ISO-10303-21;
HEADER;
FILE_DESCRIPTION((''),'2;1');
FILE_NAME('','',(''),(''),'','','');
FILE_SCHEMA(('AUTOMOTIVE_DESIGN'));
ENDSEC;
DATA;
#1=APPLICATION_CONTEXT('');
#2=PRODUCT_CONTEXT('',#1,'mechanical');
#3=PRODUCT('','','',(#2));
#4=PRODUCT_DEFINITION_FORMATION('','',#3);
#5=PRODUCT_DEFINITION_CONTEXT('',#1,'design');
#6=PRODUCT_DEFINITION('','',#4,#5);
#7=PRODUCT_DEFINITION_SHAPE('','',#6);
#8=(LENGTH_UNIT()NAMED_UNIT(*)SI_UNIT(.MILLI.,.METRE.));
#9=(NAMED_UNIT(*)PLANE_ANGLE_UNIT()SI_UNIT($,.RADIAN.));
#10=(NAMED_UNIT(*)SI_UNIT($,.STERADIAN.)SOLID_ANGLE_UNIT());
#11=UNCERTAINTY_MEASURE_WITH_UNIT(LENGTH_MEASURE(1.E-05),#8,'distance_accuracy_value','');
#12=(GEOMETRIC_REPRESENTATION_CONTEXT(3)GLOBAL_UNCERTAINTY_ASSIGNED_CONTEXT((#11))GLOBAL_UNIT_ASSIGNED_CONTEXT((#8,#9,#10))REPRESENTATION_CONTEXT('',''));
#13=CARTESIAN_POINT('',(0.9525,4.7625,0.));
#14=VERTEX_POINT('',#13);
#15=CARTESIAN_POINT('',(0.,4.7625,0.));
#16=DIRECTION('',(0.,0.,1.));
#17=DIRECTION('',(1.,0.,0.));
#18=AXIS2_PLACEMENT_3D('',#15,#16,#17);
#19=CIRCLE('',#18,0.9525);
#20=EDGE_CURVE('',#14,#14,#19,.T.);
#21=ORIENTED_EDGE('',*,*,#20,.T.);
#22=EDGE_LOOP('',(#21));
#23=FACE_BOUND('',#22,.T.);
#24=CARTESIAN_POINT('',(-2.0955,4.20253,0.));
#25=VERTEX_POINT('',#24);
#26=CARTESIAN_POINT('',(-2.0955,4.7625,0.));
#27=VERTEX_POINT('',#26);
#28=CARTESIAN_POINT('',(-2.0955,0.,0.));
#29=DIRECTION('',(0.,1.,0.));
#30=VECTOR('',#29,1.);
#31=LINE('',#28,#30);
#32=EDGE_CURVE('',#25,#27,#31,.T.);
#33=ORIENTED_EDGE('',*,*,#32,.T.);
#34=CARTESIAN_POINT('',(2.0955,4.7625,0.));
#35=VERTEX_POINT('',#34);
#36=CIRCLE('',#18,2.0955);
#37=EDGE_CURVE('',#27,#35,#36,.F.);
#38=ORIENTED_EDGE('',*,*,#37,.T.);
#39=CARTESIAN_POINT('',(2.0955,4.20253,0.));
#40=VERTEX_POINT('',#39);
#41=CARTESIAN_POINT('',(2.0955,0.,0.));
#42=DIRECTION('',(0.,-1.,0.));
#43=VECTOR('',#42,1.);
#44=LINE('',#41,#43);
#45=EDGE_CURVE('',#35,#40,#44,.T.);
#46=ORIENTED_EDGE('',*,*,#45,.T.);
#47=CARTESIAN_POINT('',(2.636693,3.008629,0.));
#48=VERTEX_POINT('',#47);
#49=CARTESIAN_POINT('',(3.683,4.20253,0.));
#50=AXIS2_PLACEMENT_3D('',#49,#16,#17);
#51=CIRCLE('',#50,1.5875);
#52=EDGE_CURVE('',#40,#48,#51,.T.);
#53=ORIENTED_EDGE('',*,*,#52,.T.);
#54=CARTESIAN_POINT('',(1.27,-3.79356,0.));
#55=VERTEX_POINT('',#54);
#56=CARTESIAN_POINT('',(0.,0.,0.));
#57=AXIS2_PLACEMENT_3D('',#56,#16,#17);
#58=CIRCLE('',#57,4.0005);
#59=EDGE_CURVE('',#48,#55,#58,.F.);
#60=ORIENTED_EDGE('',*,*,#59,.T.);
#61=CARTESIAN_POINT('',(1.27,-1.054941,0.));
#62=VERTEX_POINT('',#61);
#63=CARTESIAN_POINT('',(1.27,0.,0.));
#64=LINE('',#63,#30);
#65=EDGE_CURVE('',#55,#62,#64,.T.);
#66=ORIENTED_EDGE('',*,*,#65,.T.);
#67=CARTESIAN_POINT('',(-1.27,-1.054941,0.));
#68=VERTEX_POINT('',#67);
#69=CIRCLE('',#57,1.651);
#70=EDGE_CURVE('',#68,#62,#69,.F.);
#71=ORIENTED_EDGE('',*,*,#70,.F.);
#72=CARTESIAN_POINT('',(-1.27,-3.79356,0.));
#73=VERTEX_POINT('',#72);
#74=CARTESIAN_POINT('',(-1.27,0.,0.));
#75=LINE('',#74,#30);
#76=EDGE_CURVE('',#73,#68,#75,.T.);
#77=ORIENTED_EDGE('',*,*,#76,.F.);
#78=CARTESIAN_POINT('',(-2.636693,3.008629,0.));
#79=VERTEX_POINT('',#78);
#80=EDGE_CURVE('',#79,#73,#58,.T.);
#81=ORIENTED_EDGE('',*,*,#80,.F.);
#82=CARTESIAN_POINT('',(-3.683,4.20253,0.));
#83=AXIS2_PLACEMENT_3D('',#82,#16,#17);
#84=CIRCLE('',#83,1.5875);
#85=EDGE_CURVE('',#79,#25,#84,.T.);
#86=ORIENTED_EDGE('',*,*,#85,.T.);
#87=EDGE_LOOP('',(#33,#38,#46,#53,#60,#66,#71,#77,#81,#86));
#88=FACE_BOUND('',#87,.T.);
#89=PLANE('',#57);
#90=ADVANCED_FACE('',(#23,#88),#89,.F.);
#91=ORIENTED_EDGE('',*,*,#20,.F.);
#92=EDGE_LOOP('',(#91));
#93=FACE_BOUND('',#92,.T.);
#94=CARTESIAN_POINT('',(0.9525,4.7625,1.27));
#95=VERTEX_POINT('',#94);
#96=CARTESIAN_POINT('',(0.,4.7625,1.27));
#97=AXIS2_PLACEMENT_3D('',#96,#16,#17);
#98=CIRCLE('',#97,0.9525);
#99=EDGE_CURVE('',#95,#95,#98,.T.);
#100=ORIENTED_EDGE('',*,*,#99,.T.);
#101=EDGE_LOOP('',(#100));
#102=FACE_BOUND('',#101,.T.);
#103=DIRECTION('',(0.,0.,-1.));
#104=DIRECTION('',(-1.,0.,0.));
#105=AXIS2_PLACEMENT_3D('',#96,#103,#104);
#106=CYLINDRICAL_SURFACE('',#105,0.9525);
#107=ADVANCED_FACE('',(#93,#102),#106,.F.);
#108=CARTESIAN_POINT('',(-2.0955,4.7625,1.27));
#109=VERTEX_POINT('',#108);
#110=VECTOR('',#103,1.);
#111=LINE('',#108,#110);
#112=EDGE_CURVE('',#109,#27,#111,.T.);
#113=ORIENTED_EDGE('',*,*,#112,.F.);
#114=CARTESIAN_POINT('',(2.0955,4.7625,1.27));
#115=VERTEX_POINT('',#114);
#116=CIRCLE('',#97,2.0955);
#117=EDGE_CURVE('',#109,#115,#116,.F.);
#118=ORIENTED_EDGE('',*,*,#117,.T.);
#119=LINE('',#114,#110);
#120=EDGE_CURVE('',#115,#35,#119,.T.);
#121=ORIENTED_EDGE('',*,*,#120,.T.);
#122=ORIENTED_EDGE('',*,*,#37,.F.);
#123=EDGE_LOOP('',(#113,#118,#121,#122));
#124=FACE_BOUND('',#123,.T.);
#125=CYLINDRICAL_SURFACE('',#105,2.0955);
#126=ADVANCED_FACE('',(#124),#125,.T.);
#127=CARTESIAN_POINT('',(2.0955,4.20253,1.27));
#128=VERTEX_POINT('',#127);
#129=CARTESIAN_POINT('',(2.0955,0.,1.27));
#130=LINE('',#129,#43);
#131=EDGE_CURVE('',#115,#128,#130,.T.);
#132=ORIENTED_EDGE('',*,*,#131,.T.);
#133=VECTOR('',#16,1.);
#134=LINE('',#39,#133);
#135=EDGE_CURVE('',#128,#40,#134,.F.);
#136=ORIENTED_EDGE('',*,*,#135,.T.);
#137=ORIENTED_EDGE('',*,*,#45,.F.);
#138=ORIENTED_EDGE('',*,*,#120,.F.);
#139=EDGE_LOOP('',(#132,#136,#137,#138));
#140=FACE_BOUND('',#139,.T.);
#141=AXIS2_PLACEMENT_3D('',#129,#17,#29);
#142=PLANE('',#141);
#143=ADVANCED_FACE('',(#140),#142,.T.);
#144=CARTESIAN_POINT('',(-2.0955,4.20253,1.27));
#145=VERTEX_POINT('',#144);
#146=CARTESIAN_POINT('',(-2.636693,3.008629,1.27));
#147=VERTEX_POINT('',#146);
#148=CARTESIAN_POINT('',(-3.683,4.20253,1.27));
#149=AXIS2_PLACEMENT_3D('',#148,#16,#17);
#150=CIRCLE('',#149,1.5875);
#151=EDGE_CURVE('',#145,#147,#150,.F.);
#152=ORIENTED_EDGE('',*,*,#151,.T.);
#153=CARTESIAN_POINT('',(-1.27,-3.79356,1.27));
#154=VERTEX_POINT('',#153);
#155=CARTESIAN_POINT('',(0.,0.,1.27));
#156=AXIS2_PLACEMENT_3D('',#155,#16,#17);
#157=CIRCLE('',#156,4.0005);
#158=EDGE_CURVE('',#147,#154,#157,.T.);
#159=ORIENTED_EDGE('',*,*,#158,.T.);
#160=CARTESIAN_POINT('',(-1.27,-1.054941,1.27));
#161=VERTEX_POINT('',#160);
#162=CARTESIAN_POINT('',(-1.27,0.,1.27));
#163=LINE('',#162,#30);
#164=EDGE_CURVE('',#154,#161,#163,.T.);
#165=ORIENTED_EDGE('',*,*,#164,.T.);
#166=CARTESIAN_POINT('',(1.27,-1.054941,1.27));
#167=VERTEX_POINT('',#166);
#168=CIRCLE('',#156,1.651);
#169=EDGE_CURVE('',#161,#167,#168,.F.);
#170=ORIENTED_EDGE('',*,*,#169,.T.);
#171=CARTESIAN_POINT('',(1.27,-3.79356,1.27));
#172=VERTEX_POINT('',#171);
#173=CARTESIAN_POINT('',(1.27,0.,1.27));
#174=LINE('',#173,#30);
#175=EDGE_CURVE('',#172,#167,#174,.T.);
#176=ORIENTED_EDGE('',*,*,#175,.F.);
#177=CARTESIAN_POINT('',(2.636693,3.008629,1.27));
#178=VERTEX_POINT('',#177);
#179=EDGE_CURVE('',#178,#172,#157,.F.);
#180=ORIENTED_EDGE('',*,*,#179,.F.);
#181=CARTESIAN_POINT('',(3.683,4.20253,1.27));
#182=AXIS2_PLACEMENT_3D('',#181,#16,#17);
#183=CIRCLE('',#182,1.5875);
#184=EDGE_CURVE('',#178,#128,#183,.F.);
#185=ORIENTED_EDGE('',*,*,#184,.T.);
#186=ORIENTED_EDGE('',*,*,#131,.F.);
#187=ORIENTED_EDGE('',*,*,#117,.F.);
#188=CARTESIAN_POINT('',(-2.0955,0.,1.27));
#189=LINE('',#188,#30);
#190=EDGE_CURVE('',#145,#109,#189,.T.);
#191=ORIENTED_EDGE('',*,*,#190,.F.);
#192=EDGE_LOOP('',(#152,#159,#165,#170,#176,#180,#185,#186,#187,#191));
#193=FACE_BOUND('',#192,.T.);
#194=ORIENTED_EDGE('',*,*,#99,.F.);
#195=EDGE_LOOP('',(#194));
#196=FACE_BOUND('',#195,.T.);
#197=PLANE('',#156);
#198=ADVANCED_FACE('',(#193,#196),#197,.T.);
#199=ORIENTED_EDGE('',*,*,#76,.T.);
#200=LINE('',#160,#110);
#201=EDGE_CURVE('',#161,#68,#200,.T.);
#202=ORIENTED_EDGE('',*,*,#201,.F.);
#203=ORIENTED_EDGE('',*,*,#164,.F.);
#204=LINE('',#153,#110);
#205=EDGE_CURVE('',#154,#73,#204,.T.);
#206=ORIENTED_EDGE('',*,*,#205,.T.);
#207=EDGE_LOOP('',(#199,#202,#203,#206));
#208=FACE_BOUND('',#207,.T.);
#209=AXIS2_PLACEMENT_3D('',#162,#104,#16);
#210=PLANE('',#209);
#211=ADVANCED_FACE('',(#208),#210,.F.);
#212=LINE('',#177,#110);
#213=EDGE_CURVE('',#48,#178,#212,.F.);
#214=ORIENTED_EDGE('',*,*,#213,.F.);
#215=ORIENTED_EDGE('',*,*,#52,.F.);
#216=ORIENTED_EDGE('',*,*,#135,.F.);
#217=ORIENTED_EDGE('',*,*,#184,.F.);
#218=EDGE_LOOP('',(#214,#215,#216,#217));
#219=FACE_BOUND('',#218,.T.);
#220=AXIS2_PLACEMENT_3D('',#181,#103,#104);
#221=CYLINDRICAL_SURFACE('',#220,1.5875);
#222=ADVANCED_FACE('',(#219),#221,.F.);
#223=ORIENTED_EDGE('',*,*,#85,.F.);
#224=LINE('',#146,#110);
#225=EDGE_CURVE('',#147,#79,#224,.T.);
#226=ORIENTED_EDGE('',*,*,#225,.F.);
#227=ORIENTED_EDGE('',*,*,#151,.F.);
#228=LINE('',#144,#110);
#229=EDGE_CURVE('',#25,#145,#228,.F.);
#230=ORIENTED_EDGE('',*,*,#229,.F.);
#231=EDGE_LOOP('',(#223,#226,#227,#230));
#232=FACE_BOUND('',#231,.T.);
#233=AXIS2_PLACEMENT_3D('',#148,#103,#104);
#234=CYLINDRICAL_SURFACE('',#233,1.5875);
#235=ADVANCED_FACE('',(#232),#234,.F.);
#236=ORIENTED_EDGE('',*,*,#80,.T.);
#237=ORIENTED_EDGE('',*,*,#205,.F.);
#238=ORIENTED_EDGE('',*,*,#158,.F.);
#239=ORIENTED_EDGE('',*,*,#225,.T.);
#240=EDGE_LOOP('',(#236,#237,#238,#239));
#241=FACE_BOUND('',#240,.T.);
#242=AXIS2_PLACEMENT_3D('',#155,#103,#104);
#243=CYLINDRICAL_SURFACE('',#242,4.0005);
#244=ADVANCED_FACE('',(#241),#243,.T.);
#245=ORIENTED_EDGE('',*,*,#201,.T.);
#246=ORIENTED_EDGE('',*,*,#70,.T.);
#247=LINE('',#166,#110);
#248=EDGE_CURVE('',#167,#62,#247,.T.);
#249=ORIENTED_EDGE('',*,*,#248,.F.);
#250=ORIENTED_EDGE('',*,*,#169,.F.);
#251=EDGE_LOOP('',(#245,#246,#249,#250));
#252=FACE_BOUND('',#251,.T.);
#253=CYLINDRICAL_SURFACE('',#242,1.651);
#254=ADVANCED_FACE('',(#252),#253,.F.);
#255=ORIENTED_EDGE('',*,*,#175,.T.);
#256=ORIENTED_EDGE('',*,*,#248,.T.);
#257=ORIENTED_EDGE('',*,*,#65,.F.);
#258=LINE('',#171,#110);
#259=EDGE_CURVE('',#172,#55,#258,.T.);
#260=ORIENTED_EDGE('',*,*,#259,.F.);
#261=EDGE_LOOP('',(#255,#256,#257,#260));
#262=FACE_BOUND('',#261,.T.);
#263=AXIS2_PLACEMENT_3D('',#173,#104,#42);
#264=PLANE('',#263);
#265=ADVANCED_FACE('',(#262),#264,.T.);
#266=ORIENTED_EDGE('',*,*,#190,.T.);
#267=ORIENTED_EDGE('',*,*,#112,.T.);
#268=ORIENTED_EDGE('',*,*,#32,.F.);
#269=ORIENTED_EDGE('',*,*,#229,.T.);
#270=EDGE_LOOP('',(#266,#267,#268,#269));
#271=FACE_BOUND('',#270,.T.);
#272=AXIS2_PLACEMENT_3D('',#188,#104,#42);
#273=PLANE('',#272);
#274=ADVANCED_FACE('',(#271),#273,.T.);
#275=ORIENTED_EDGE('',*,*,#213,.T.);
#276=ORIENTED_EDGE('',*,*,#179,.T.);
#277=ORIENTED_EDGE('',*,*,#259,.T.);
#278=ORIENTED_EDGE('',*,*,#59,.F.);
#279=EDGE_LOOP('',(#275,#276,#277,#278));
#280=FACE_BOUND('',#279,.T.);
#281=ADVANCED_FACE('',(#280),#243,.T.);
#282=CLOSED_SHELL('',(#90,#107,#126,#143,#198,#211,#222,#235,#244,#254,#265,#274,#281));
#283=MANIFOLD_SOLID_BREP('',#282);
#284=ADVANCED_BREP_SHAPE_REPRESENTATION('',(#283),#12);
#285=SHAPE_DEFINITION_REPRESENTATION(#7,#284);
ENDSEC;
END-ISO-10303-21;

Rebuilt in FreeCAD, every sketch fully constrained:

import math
import FreeCAD as App
import Part
import Sketcher
Q = App.Units.Quantity


def edges_at(feature, points):
    """Names of the edges that pass closest to the given points."""
    edges = feature.Shape.Edges
    near = lambda p: min(range(len(edges)), key=lambda i: edges[i].distToShape(Part.Vertex(*p))[0])
    return sorted({f"Edge{near(p) + 1}" for p in points})

doc = App.newDocument("Part")
params = doc.addObject("Spreadsheet::Sheet", "Params")
for row, (alias, value) in enumerate([
    ("sketch1_diameter", "0.075 in"),
    ("sketch1_radius", "0.065 in"),
    ("pad1_length", "0.05 in"),
    ("fillet_radius", "0.0625 in"),
], start=1):
    params.set(f"A{row}", alias)
    params.set(f"B{row}", "=" + value)
    params.setAlias(f"B{row}", alias)

body = doc.addObject("PartDesign::Body", "Body")

# Sketch on XY plane
sketch1 = body.newObject("Sketcher::SketchObject", "Sketch")
sketch1.AttachmentSupport = (doc.getObject("XY_Plane"), [""])
sketch1.MapMode = "FlatFace"
sketch1.addGeometry(Part.LineSegment(App.Vector(-1.3, -3.8, 0), App.Vector(-1.3, -1.1, 0)), False)
sketch1.addGeometry(Part.ArcOfCircle(Part.Circle(App.Vector(0, 0, 0), App.Vector(0, 0, 1), 1.7), math.radians(-40), math.radians(220)), False)
sketch1.addGeometry(Part.LineSegment(App.Vector(1.3, -1.1, 0), App.Vector(1.3, -3.8, 0)), False)
sketch1.addGeometry(Part.ArcOfCircle(Part.Circle(App.Vector(0, 0, 0), App.Vector(0, 0, 1), 4), math.radians(-71), math.radians(58)), False)
sketch1.addGeometry(Part.LineSegment(App.Vector(2.1, 3.4, 0), App.Vector(2.1, 4.8, 0)), False)
sketch1.addGeometry(Part.ArcOfCircle(Part.Circle(App.Vector(0, 4.8, 0), App.Vector(0, 0, 1), 2.1), math.radians(0), math.radians(180)), False)
sketch1.addGeometry(Part.LineSegment(App.Vector(-2.1, 4.8, 0), App.Vector(-2.1, 3.4, 0)), False)
sketch1.addGeometry(Part.ArcOfCircle(Part.Circle(App.Vector(0, 0, 0), App.Vector(0, 0, 1), 4), math.radians(122), math.radians(251)), False)
sketch1.addGeometry(Part.Circle(App.Vector(0, 4.8, 0), App.Vector(0, 0, 1), 1), False)
sketch1.addConstraint(Sketcher.Constraint("Coincident", 0, 2, 1, 2))
sketch1.addConstraint(Sketcher.Constraint("Coincident", 1, 1, 2, 1))
sketch1.addConstraint(Sketcher.Constraint("Coincident", 2, 2, 3, 1))
sketch1.addConstraint(Sketcher.Constraint("Coincident", 3, 2, 4, 1))
sketch1.addConstraint(Sketcher.Constraint("Tangent", 4, 2, 5, 1))
sketch1.addConstraint(Sketcher.Constraint("Tangent", 5, 2, 6, 1))
sketch1.addConstraint(Sketcher.Constraint("Coincident", 6, 2, 7, 1))
sketch1.addConstraint(Sketcher.Constraint("Coincident", 7, 2, 0, 1))
sketch1.addConstraint(Sketcher.Constraint("Vertical", 0))
sketch1.addConstraint(Sketcher.Constraint("Vertical", 2))
sketch1.addConstraint(Sketcher.Constraint("Vertical", 4))
sketch1.addConstraint(Sketcher.Constraint("Vertical", 6))
sketch1.addConstraint(Sketcher.Constraint("Coincident", 1, 3, -1, 1))
sketch1.addConstraint(Sketcher.Constraint("Coincident", 3, 3, -1, 1))
sketch1.addConstraint(Sketcher.Constraint("Coincident", 7, 3, -1, 1))
sketch1.addConstraint(Sketcher.Constraint("Coincident", 8, 3, 5, 3))
sketch1.addConstraint(Sketcher.Constraint("Equal", 3, 7))
sketch1.addConstraint(Sketcher.Constraint("PointOnObject", 5, 3, -2))
sketch1.addConstraint(Sketcher.Constraint("Horizontal", 0, 2, 1, 1))
sketch1.addConstraint(Sketcher.Constraint("Diameter", 8, Q("0.075 in")))
sketch1.addConstraint(Sketcher.Constraint("Radius", 1, Q("0.065 in")))
sketch1.addConstraint(Sketcher.Constraint("Radius", 3, Q("0.1575 in")))
sketch1.addConstraint(Sketcher.Constraint("Radius", 5, Q("0.0825 in")))
sketch1.addConstraint(Sketcher.Constraint("DistanceX", 0, 2, 1, 1, Q("0.1 in")))
sketch1.addConstraint(Sketcher.Constraint("DistanceY", -1, 1, 5, 3, Q("0.1875 in")))
sketch1.setExpression("Constraints[19]", "Params.sketch1_diameter")
sketch1.setExpression("Constraints[20]", "Params.sketch1_radius")
pad1 = body.newObject("PartDesign::Pad", "Pad")
pad1.Profile = sketch1
pad1.setExpression("Length", "Params.pad1_length")
doc.recompute()

fillet = body.newObject("PartDesign::Fillet", "Fillet")
fillet.Base = (pad1, edges_at(pad1, [(-2.095, 3.408, 0.635), (2.095, 3.408, 0.635)]))
fillet.setExpression("Radius", "Params.fillet_radius")

doc.recompute()
